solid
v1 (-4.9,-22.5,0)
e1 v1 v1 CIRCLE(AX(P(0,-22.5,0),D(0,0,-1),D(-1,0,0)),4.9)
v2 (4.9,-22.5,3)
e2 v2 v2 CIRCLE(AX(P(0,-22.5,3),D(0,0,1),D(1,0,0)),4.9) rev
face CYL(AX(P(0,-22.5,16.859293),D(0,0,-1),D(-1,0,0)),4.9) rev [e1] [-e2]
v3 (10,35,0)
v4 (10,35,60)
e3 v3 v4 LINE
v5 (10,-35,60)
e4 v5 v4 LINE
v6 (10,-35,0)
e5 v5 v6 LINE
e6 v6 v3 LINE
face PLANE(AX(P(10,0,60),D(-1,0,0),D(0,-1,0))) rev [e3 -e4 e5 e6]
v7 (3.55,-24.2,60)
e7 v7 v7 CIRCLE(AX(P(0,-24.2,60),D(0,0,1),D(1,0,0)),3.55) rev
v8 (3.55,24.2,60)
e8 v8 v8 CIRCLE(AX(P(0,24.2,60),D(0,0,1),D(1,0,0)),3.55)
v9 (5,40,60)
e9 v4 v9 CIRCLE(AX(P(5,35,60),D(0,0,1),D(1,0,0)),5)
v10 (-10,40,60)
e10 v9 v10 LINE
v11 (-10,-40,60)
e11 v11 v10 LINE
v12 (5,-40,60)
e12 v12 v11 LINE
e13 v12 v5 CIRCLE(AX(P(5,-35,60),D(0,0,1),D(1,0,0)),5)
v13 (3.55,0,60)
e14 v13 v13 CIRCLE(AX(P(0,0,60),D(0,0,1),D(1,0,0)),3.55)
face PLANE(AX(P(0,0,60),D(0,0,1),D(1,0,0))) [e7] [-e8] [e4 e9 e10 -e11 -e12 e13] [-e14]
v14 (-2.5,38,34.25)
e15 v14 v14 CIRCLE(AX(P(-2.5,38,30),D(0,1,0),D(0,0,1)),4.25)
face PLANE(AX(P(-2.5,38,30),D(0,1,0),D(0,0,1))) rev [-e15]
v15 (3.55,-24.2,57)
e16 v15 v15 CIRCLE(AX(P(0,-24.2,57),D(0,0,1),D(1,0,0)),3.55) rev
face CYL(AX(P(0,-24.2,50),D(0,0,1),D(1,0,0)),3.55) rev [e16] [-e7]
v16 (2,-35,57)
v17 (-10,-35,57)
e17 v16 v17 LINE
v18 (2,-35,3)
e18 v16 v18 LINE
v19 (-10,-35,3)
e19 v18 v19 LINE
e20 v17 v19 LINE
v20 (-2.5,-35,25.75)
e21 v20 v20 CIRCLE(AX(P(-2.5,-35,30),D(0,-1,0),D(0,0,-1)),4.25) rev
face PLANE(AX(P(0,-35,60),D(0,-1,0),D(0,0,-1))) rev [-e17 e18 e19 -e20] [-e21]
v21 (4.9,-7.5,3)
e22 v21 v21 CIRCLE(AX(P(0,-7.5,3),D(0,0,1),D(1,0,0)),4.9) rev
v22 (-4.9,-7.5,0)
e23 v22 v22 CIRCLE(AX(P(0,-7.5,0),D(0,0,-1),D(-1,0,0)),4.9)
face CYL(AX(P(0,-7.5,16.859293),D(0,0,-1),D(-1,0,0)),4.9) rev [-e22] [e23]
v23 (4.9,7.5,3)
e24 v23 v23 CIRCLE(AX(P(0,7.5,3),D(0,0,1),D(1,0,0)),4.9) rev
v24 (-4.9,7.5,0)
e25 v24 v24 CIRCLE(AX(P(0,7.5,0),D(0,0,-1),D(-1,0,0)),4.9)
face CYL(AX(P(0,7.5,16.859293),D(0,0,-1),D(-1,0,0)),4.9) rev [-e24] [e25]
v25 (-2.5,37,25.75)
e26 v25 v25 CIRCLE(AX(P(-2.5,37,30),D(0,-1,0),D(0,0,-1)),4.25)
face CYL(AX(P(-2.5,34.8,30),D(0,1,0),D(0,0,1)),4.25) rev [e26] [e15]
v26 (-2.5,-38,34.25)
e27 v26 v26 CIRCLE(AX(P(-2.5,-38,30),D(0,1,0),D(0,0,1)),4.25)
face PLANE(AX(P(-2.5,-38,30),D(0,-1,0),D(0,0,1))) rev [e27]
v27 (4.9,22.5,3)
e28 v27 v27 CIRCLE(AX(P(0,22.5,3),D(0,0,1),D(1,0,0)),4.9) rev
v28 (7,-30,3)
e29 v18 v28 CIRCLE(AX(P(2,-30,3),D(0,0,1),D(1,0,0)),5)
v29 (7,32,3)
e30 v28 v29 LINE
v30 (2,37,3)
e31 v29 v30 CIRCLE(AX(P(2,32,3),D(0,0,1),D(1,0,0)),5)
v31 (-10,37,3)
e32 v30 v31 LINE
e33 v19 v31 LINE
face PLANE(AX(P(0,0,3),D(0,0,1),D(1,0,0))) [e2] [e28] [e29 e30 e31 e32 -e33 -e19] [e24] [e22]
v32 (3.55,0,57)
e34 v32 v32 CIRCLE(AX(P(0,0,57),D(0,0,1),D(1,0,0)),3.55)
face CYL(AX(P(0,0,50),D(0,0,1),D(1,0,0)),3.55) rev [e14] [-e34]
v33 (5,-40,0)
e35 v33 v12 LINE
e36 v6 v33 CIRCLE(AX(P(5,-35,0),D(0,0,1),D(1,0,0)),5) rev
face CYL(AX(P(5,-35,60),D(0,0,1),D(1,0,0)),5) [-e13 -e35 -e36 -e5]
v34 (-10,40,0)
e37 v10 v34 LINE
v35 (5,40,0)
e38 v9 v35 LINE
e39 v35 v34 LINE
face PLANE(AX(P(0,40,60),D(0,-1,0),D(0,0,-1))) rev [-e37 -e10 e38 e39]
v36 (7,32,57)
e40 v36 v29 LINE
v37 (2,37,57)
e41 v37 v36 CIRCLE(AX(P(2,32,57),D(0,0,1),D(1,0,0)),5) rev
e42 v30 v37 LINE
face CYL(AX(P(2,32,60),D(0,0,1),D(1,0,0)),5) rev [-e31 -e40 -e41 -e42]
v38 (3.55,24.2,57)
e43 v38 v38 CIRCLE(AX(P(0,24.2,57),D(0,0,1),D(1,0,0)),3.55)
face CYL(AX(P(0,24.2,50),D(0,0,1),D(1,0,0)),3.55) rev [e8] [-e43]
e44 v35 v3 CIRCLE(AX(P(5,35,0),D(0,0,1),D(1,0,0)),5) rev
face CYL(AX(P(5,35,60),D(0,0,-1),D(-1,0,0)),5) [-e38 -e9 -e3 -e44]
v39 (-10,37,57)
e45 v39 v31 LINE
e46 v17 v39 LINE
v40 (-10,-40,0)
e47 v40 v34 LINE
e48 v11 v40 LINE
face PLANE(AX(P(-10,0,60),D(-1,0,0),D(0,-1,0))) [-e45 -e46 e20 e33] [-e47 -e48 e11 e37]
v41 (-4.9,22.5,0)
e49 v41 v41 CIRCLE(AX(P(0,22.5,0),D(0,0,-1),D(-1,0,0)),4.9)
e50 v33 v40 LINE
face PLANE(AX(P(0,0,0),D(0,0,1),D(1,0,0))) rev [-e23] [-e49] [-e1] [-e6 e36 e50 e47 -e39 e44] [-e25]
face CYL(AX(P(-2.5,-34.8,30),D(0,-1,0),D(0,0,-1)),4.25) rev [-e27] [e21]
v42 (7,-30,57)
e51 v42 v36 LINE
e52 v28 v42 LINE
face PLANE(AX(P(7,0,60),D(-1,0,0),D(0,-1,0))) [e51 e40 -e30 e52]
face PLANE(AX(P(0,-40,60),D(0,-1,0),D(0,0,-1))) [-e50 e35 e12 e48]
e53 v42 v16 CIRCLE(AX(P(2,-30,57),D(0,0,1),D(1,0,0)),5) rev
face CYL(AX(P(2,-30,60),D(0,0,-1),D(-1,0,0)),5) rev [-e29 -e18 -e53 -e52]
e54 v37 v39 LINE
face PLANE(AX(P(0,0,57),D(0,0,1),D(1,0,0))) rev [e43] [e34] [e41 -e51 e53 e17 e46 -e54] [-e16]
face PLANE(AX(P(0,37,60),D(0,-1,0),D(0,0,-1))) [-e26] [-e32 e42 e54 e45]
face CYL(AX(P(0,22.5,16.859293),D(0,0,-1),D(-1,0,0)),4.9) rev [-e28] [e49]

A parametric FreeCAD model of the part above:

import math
import FreeCAD as App
import Part
import Sketcher
Q = App.Units.Quantity


def edges_at(feature, points):
    """Names of the edges that pass closest to the given points."""
    edges = feature.Shape.Edges
    near = lambda p: min(range(len(edges)), key=lambda i: edges[i].distToShape(Part.Vertex(*p))[0])
    return sorted({f"Edge{near(p) + 1}" for p in points})


def faces_at(feature, points):
    """Names of the faces that lie closest to the given points."""
    faces = feature.Shape.Faces
    near = lambda p: min(range(len(faces)), key=lambda i: faces[i].distToShape(Part.Vertex(*p))[0])
    return sorted({f"Face{near(p) + 1}" for p in points})

doc = App.newDocument("Part")
params = doc.addObject("Spreadsheet::Sheet", "Params")
for row, (alias, value) in enumerate([
    ("sketch1_width", "20 mm"),
    ("sketch1_height", "80 mm"),
    ("pad1_length", "60 mm"),
    ("thickness_wall", "3 mm"),
    ("sketch2_width", "17 mm"),
    ("sketch2_height", "54 mm"),
    ("pad2_length", "2 mm"),
    ("sketch3_radius", "4.9 mm"),
    ("pocket1_length", "3 mm"),
    ("sketch4_diameter", "7.1 mm"),
    ("pocket2_length", "10 mm"),
    ("fillet_radius", "5 mm"),
    ("sketch5_diameter", "8.5 mm"),
    ("pocket3_length", "3.2 mm"),
], start=1):
    params.set(f"A{row}", alias)
    params.set(f"B{row}", "=" + value)
    params.setAlias(f"B{row}", alias)

body = doc.addObject("PartDesign::Body", "Body")

# Sketch on XY plane
sketch1 = body.newObject("Sketcher::SketchObject", "Sketch")
sketch1.AttachmentSupport = (doc.getObject("XY_Plane"), [""])
sketch1.MapMode = "FlatFace"
sketch1.addGeometry(Part.LineSegment(App.Vector(-10, -40, 0), App.Vector(10, -40, 0)), False)
sketch1.addGeometry(Part.LineSegment(App.Vector(10, -40, 0), App.Vector(10, 40, 0)), False)
sketch1.addGeometry(Part.LineSegment(App.Vector(10, 40, 0), App.Vector(-10, 40, 0)), False)
sketch1.addGeometry(Part.LineSegment(App.Vector(-10, 40, 0), App.Vector(-10, -40, 0)), False)
sketch1.addConstraint(Sketcher.Constraint("Coincident", 0, 2, 1, 1))
sketch1.addConstraint(Sketcher.Constraint("Coincident", 1, 2, 2, 1))
sketch1.addConstraint(Sketcher.Constraint("Coincident", 2, 2, 3, 1))
sketch1.addConstraint(Sketcher.Constraint("Coincident", 3, 2, 0, 1))
sketch1.addConstraint(Sketcher.Constraint("Horizontal", 0))
sketch1.addConstraint(Sketcher.Constraint("Vertical", 1))
sketch1.addConstraint(Sketcher.Constraint("Horizontal", 2))
sketch1.addConstraint(Sketcher.Constraint("Vertical", 3))
sketch1.addConstraint(Sketcher.Constraint("Symmetric", 0, 2, 2, 2, -1, 1))
sketch1.addConstraint(Sketcher.Constraint("DistanceX", 0, 1, 0, 2, Q("20 mm")))
sketch1.addConstraint(Sketcher.Constraint("DistanceY", 1, 1, 1, 2, Q("80 mm")))
sketch1.setExpression("Constraints[9]", "Params.sketch1_width")
sketch1.setExpression("Constraints[10]", "Params.sketch1_height")
pad1 = body.newObject("PartDesign::Pad", "Pad")
pad1.Profile = sketch1
pad1.setExpression("Length", "Params.pad1_length")
doc.recompute()

thickness = body.newObject("PartDesign::Thickness", "Thickness")
thickness.Base = (pad1, faces_at(pad1, [(-10, 0, 30)]))
thickness.setExpression("Value", "Params.thickness_wall")
thickness.Reversed = True
thickness.Join = "Intersection"

# Sketch on XZ plane
sketch2 = body.newObject("Sketcher::SketchObject", "Sketch001")
sketch2.AttachmentSupport = (doc.getObject("XZ_Plane"), [""])
sketch2.MapMode = "FlatFace"
sketch2.AttachmentOffset = App.Placement(App.Vector(0, 0, 37), App.Rotation())
sketch2.addGeometry(Part.LineSegment(App.Vector(7, 57, 0), App.Vector(-10, 57, 0)), False)
sketch2.addGeometry(Part.LineSegment(App.Vector(-10, 57, 0), App.Vector(-10, 3, 0)), False)
sketch2.addGeometry(Part.LineSegment(App.Vector(-10, 3, 0), App.Vector(7, 3, 0)), False)
sketch2.addGeometry(Part.LineSegment(App.Vector(7, 3, 0), App.Vector(7, 57, 0)), False)
sketch2.addConstraint(Sketcher.Constraint("Coincident", 0, 2, 1, 1))
sketch2.addConstraint(Sketcher.Constraint("Coincident", 1, 2, 2, 1))
sketch2.addConstraint(Sketcher.Constraint("Coincident", 2, 2, 3, 1))
sketch2.addConstraint(Sketcher.Constraint("Coincident", 3, 2, 0, 1))
sketch2.addConstraint(Sketcher.Constraint("Horizontal", 0))
sketch2.addConstraint(Sketcher.Constraint("Vertical", 1))
sketch2.addConstraint(Sketcher.Constraint("Horizontal", 2))
sketch2.addConstraint(Sketcher.Constraint("Vertical", 3))
sketch2.addConstraint(Sketcher.Constraint("DistanceX", 0, 2, 0, 1, Q("17 mm")))
sketch2.addConstraint(Sketcher.Constraint("DistanceY", 1, 2, 1, 1, Q("54 mm")))
sketch2.addConstraint(Sketcher.Constraint("DistanceX", 0, 2, -1, 1, Q("10 mm")))
sketch2.addConstraint(Sketcher.Constraint("DistanceY", -1, 1, 0, 2, Q("57 mm")))
sketch2.setExpression("Constraints[8]", "Params.sketch2_width")
sketch2.setExpression("Constraints[9]", "Params.sketch2_height")
pad2 = body.newObject("PartDesign::Pad", "Pad001")
pad2.Profile = sketch2
pad2.setExpression("Length", "Params.pad2_length")
pad2.Reversed = True

# Sketch on XY plane
sketch3 = body.newObject("Sketcher::SketchObject", "Sketch002")
sketch3.AttachmentSupport = (doc.getObject("XY_Plane"), [""])
sketch3.MapMode = "FlatFace"
sketch3.addGeometry(Part.ArcOfCircle(Part.Circle(App.Vector(0, -22.5, 0), App.Vector(0, 0, 1), 4.9), math.radians(-90), math.radians(0)), False)
sketch3.addGeometry(Part.ArcOfCircle(Part.Circle(App.Vector(0, -22.5, 0), App.Vector(0, 0, 1), 4.9), math.radians(90), math.radians(270)), False)
sketch3.addGeometry(Part.ArcOfCircle(Part.Circle(App.Vector(0, -22.5, 0), App.Vector(0, 0, 1), 4.9), math.radians(0), math.radians(90)), False)
sketch3.addGeometry(Part.ArcOfCircle(Part.Circle(App.Vector(0, -7.5, 0), App.Vector(0, 0, 1), 4.9), math.radians(-90), math.radians(0)), False)
sketch3.addGeometry(Part.ArcOfCircle(Part.Circle(App.Vector(0, -7.5, 0), App.Vector(0, 0, 1), 4.9), math.radians(90), math.radians(270)), False)
sketch3.addGeometry(Part.ArcOfCircle(Part.Circle(App.Vector(0, -7.5, 0), App.Vector(0, 0, 1), 4.9), math.radians(0), math.radians(90)), False)
sketch3.addGeometry(Part.ArcOfCircle(Part.Circle(App.Vector(0, 7.5, 0), App.Vector(0, 0, 1), 4.9), math.radians(-90), math.radians(0)), False)
sketch3.addGeometry(Part.ArcOfCircle(Part.Circle(App.Vector(0, 7.5, 0), App.Vector(0, 0, 1), 4.9), math.radians(90), math.radians(270)), False)
sketch3.addGeometry(Part.ArcOfCircle(Part.Circle(App.Vector(0, 7.5, 0), App.Vector(0, 0, 1), 4.9), math.radians(0), math.radians(90)), False)
sketch3.addGeometry(Part.ArcOfCircle(Part.Circle(App.Vector(0, 22.5, 0), App.Vector(0, 0, 1), 4.9), math.radians(-90), math.radians(0)), False)
sketch3.addGeometry(Part.ArcOfCircle(Part.Circle(App.Vector(0, 22.5, 0), App.Vector(0, 0, 1), 4.9), math.radians(90), math.radians(270)), False)
sketch3.addGeometry(Part.ArcOfCircle(Part.Circle(App.Vector(0, 22.5, 0), App.Vector(0, 0, 1), 4.9), math.radians(0), math.radians(90)), False)
sketch3.addConstraint(Sketcher.Constraint("Tangent", 0, 1, 1, 2))
sketch3.addConstraint(Sketcher.Constraint("Tangent", 1, 1, 2, 2))
sketch3.addConstraint(Sketcher.Constraint("Tangent", 2, 1, 0, 2))
sketch3.addConstraint(Sketcher.Constraint("Tangent", 3, 1, 4, 2))
sketch3.addConstraint(Sketcher.Constraint("Tangent", 4, 1, 5, 2))
sketch3.addConstraint(Sketcher.Constraint("Tangent", 5, 1, 3, 2))
sketch3.addConstraint(Sketcher.Constraint("Tangent", 6, 1, 7, 2))
sketch3.addConstraint(Sketcher.Constraint("Tangent", 7, 1, 8, 2))
sketch3.addConstraint(Sketcher.Constraint("Tangent", 8, 1, 6, 2))
sketch3.addConstraint(Sketcher.Constraint("Tangent", 9, 1, 10, 2))
sketch3.addConstraint(Sketcher.Constraint("Tangent", 10, 1, 11, 2))
sketch3.addConstraint(Sketcher.Constraint("Tangent", 11, 1, 9, 2))
sketch3.addConstraint(Sketcher.Constraint("Equal", 2, 3))
sketch3.addConstraint(Sketcher.Constraint("Equal", 5, 6))
sketch3.addConstraint(Sketcher.Constraint("Equal", 8, 9))
sketch3.addConstraint(Sketcher.Constraint("Symmetric", 3, 3, 6, 3, -1, 1))
sketch3.addConstraint(Sketcher.Constraint("Symmetric", 0, 3, 9, 3, -1, 1))
sketch3.addConstraint(Sketcher.Constraint("Symmetric", 5, 1, 8, 1, -1))
sketch3.addConstraint(Sketcher.Constraint("Symmetric", 2, 1, 11, 1, -1))
sketch3.addConstraint(Sketcher.Constraint("PointOnObject", 0, 1, -2))
sketch3.addConstraint(Sketcher.Constraint("PointOnObject", 1, 1, -2))
sketch3.addConstraint(Sketcher.Constraint("PointOnObject", 3, 1, -2))
sketch3.addConstraint(Sketcher.Constraint("PointOnObject", 4, 1, -2))
sketch3.addConstraint(Sketcher.Constraint("PointOnObject", 6, 1, -2))
sketch3.addConstraint(Sketcher.Constraint("PointOnObject", 7, 1, -2))
sketch3.addConstraint(Sketcher.Constraint("PointOnObject", 9, 1, -2))
sketch3.addConstraint(Sketcher.Constraint("PointOnObject", 10, 1, -2))
sketch3.addConstraint(Sketcher.Constraint("Horizontal", 1, 3, 2, 1))
sketch3.addConstraint(Sketcher.Constraint("Horizontal", 4, 3, 5, 1))
sketch3.addConstraint(Sketcher.Constraint("Radius", 0, Q("4.9 mm")))
sketch3.addConstraint(Sketcher.Constraint("DistanceY", 2, 3, 3, 3, Q("15 mm")))
sketch3.addConstraint(Sketcher.Constraint("DistanceY", 5, 3, 6, 3, Q("15 mm")))
sketch3.setExpression("Constraints[29]", "Params.sketch3_radius")
pocket1 = body.newObject("PartDesign::Pocket", "Pocket")
pocket1.Profile = sketch3
pocket1.setExpression("Length", "Params.pocket1_length")
pocket1.Reversed = True

# Sketch on XY plane
sketch4 = body.newObject("Sketcher::SketchObject", "Sketch003")
sketch4.AttachmentSupport = (doc.getObject("XY_Plane"), [""])
sketch4.MapMode = "FlatFace"
sketch4.AttachmentOffset = App.Placement(App.Vector(0, 0, 60), App.Rotation())
sketch4.addGeometry(Part.Circle(App.Vector(0, 24.2, 0), App.Vector(0, 0, 1), 3.5), False)
sketch4.addGeometry(Part.Circle(App.Vector(0, 0, 0), App.Vector(0, 0, 1), 3.5), False)
sketch4.addGeometry(Part.Circle(App.Vector(0, -24.2, 0), App.Vector(0, 0, 1), 3.5), False)
sketch4.addConstraint(Sketcher.Constraint("Coincident", 1, 3, -1, 1))
sketch4.addConstraint(Sketcher.Constraint("Equal", 0, 1))
sketch4.addConstraint(Sketcher.Constraint("Equal", 1, 2))
sketch4.addConstraint(Sketcher.Constraint("Symmetric", 0, 3, 2, 3, -1, 1))
sketch4.addConstraint(Sketcher.Constraint("PointOnObject", 0, 3, -2))
sketch4.addConstraint(Sketcher.Constraint("Diameter", 0, Q("7.1 mm")))
sketch4.addConstraint(Sketcher.Constraint("DistanceY", -1, 1, 0, 3, Q("24.2 mm")))
sketch4.setExpression("Constraints[5]", "Params.sketch4_diameter")
pocket2 = body.newObject("PartDesign::Pocket", "Pocket001")
pocket2.Profile = sketch4
pocket2.setExpression("Length", "Params.pocket2_length")
doc.recompute()

fillet = body.newObject("PartDesign::Fillet", "Fillet")
fillet.Base = (pocket2, edges_at(pocket2, [
    (7, -35, 30),
    (7, 37, 30),
    (10, -40, 30),
    (10, 40, 30),
]))
fillet.setExpression("Radius", "Params.fillet_radius")

# Sketch on XZ plane
sketch5 = body.newObject("Sketcher::SketchObject", "Sketch004")
sketch5.AttachmentSupport = (doc.getObject("XZ_Plane"), [""])
sketch5.MapMode = "FlatFace"
sketch5.AttachmentOffset = App.Placement(App.Vector(0, 0, -38), App.Rotation())
sketch5.addGeometry(Part.Circle(App.Vector(-2.5, 30, 0), App.Vector(0, 0, 1), 4.2), False)
sketch5.addConstraint(Sketcher.Constraint("Diameter", 0, Q("8.5 mm")))
sketch5.addConstraint(Sketcher.Constraint("DistanceY", -1, 1, 0, 3, Q("30 mm")))
sketch5.addConstraint(Sketcher.Constraint("DistanceX", 0, 3, -1, 1, Q("2.5 mm")))
sketch5.setExpression("Constraints[0]", "Params.sketch5_diameter")
pocket3 = body.newObject("PartDesign::Pocket", "Pocket002")
pocket3.Profile = sketch5
pocket3.setExpression("Length", "Params.pocket3_length")
pocket3.Reversed = True
doc.recompute()

mirrored = body.newObject("PartDesign::Mirrored", "Mirrored")
mirrored.Originals = [pocket3]
mirrored.MirrorPlane = (doc.getObject("XZ_Plane"), [""])
body.Tip = mirrored

doc.recompute()
